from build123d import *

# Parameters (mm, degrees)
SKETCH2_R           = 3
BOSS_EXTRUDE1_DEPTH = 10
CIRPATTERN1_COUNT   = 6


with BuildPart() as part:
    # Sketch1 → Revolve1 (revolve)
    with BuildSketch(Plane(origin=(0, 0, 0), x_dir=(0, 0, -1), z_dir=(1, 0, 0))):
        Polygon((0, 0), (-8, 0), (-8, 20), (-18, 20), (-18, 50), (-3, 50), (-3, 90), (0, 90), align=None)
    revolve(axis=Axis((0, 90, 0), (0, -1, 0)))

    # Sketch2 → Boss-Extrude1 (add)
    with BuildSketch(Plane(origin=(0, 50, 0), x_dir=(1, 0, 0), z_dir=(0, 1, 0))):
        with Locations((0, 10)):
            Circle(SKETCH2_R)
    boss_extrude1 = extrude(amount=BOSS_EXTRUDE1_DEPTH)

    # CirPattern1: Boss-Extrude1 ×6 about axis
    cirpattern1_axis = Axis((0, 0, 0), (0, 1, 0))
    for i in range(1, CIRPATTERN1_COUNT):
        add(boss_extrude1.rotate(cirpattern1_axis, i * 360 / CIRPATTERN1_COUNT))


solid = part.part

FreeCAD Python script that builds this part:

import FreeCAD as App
import Part
import Sketcher

V = App.Vector

doc = App.newDocument("Part")
body = doc.addObject("PartDesign::Body", "Body")

# Sketch on YZ plane
sketch1 = body.newObject("Sketcher::SketchObject", "Sketch")
sketch1.AttachmentSupport = (doc.getObject("YZ_Plane"), [""])
sketch1.MapMode = "FlatFace"
sketch1.addGeometry(Part.LineSegment(V(0, 8, 0), V(0, 0, 0)), False)
sketch1.addGeometry(Part.LineSegment(V(0, 0, 0), V(90, 0, 0)), False)
sketch1.addGeometry(Part.LineSegment(V(90, 0, 0), V(90, 3, 0)), False)
sketch1.addGeometry(Part.LineSegment(V(90, 3, 0), V(50, 3, 0)), False)
sketch1.addGeometry(Part.LineSegment(V(50, 3, 0), V(50, 18, 0)), False)
sketch1.addGeometry(Part.LineSegment(V(50, 18, 0), V(20, 18, 0)), False)
sketch1.addGeometry(Part.LineSegment(V(20, 18, 0), V(20, 8, 0)), False)
sketch1.addGeometry(Part.LineSegment(V(20, 8, 0), V(0, 8, 0)), False)
sketch1.addConstraint(Sketcher.Constraint("Coincident", 0, 2, 1, 1))
sketch1.addConstraint(Sketcher.Constraint("Coincident", 1, 2, 2, 1))
sketch1.addConstraint(Sketcher.Constraint("Coincident", 2, 2, 3, 1))
sketch1.addConstraint(Sketcher.Constraint("Coincident", 3, 2, 4, 1))
sketch1.addConstraint(Sketcher.Constraint("Coincident", 4, 2, 5, 1))
sketch1.addConstraint(Sketcher.Constraint("Coincident", 5, 2, 6, 1))
sketch1.addConstraint(Sketcher.Constraint("Coincident", 6, 2, 7, 1))
sketch1.addConstraint(Sketcher.Constraint("Coincident", 7, 2, 0, 1))
sketch1.addConstraint(Sketcher.Constraint("Vertical", 0))
sketch1.addConstraint(Sketcher.Constraint("Horizontal", 1))
sketch1.addConstraint(Sketcher.Constraint("Vertical", 2))
sketch1.addConstraint(Sketcher.Constraint("Horizontal", 3))
sketch1.addConstraint(Sketcher.Constraint("Vertical", 4))
sketch1.addConstraint(Sketcher.Constraint("Horizontal", 5))
sketch1.addConstraint(Sketcher.Constraint("Vertical", 6))
sketch1.addConstraint(Sketcher.Constraint("Horizontal", 7))
sketch1.addConstraint(Sketcher.Constraint("Coincident", 0, 2, -1, 1))
sketch1.addConstraint(Sketcher.Constraint("DistanceX", 1, 1, 1, 2, 90.0))
sketch1.addConstraint(Sketcher.Constraint("DistanceX", 3, 2, 3, 1, 40.0))
sketch1.addConstraint(Sketcher.Constraint("DistanceX", 5, 2, 5, 1, 30.0))
sketch1.addConstraint(Sketcher.Constraint("DistanceY", 0, 2, 0, 1, 8.0))
sketch1.addConstraint(Sketcher.Constraint("DistanceY", 2, 1, 2, 2, 3.0))
sketch1.addConstraint(Sketcher.Constraint("DistanceY", 4, 1, 4, 2, 15.0))
revolution = body.newObject("PartDesign::Revolution", "Revolution")
revolution.Profile = sketch1
revolution.ReferenceAxis = (sketch1, ["H_Axis"])
revolution.Angle = 360

# Sketch on XZ plane
sketch2 = body.newObject("Sketcher::SketchObject", "Sketch001")
sketch2.AttachmentSupport = (doc.getObject("XZ_Plane"), [""])
sketch2.MapMode = "FlatFace"
sketch2.AttachmentOffset = App.Placement(V(0, 0, -50), App.Rotation())
sketch2.addGeometry(Part.Circle(V(0, -10, 0), V(0, 0, 1), 3), False)
sketch2.addConstraint(Sketcher.Constraint("PointOnObject", 0, 3, -2))
sketch2.addConstraint(Sketcher.Constraint("Diameter", 0, 6.0))
sketch2.addConstraint(Sketcher.Constraint("DistanceY", 0, 3, -1, 1, 10.0))
pad1 = body.newObject("PartDesign::Pad", "Pad")
pad1.Profile = sketch2
pad1.Length = 10
pad1.Reversed = True
doc.recompute()

polarpattern = body.newObject("PartDesign::PolarPattern", "PolarPattern")
polarpattern.Originals = [pad1]
polarpattern.Axis = (doc.getObject("Y_Axis"), [""])
polarpattern.Angle = 360
polarpattern.Occurrences = 6
body.Tip = polarpattern

doc.recompute()
